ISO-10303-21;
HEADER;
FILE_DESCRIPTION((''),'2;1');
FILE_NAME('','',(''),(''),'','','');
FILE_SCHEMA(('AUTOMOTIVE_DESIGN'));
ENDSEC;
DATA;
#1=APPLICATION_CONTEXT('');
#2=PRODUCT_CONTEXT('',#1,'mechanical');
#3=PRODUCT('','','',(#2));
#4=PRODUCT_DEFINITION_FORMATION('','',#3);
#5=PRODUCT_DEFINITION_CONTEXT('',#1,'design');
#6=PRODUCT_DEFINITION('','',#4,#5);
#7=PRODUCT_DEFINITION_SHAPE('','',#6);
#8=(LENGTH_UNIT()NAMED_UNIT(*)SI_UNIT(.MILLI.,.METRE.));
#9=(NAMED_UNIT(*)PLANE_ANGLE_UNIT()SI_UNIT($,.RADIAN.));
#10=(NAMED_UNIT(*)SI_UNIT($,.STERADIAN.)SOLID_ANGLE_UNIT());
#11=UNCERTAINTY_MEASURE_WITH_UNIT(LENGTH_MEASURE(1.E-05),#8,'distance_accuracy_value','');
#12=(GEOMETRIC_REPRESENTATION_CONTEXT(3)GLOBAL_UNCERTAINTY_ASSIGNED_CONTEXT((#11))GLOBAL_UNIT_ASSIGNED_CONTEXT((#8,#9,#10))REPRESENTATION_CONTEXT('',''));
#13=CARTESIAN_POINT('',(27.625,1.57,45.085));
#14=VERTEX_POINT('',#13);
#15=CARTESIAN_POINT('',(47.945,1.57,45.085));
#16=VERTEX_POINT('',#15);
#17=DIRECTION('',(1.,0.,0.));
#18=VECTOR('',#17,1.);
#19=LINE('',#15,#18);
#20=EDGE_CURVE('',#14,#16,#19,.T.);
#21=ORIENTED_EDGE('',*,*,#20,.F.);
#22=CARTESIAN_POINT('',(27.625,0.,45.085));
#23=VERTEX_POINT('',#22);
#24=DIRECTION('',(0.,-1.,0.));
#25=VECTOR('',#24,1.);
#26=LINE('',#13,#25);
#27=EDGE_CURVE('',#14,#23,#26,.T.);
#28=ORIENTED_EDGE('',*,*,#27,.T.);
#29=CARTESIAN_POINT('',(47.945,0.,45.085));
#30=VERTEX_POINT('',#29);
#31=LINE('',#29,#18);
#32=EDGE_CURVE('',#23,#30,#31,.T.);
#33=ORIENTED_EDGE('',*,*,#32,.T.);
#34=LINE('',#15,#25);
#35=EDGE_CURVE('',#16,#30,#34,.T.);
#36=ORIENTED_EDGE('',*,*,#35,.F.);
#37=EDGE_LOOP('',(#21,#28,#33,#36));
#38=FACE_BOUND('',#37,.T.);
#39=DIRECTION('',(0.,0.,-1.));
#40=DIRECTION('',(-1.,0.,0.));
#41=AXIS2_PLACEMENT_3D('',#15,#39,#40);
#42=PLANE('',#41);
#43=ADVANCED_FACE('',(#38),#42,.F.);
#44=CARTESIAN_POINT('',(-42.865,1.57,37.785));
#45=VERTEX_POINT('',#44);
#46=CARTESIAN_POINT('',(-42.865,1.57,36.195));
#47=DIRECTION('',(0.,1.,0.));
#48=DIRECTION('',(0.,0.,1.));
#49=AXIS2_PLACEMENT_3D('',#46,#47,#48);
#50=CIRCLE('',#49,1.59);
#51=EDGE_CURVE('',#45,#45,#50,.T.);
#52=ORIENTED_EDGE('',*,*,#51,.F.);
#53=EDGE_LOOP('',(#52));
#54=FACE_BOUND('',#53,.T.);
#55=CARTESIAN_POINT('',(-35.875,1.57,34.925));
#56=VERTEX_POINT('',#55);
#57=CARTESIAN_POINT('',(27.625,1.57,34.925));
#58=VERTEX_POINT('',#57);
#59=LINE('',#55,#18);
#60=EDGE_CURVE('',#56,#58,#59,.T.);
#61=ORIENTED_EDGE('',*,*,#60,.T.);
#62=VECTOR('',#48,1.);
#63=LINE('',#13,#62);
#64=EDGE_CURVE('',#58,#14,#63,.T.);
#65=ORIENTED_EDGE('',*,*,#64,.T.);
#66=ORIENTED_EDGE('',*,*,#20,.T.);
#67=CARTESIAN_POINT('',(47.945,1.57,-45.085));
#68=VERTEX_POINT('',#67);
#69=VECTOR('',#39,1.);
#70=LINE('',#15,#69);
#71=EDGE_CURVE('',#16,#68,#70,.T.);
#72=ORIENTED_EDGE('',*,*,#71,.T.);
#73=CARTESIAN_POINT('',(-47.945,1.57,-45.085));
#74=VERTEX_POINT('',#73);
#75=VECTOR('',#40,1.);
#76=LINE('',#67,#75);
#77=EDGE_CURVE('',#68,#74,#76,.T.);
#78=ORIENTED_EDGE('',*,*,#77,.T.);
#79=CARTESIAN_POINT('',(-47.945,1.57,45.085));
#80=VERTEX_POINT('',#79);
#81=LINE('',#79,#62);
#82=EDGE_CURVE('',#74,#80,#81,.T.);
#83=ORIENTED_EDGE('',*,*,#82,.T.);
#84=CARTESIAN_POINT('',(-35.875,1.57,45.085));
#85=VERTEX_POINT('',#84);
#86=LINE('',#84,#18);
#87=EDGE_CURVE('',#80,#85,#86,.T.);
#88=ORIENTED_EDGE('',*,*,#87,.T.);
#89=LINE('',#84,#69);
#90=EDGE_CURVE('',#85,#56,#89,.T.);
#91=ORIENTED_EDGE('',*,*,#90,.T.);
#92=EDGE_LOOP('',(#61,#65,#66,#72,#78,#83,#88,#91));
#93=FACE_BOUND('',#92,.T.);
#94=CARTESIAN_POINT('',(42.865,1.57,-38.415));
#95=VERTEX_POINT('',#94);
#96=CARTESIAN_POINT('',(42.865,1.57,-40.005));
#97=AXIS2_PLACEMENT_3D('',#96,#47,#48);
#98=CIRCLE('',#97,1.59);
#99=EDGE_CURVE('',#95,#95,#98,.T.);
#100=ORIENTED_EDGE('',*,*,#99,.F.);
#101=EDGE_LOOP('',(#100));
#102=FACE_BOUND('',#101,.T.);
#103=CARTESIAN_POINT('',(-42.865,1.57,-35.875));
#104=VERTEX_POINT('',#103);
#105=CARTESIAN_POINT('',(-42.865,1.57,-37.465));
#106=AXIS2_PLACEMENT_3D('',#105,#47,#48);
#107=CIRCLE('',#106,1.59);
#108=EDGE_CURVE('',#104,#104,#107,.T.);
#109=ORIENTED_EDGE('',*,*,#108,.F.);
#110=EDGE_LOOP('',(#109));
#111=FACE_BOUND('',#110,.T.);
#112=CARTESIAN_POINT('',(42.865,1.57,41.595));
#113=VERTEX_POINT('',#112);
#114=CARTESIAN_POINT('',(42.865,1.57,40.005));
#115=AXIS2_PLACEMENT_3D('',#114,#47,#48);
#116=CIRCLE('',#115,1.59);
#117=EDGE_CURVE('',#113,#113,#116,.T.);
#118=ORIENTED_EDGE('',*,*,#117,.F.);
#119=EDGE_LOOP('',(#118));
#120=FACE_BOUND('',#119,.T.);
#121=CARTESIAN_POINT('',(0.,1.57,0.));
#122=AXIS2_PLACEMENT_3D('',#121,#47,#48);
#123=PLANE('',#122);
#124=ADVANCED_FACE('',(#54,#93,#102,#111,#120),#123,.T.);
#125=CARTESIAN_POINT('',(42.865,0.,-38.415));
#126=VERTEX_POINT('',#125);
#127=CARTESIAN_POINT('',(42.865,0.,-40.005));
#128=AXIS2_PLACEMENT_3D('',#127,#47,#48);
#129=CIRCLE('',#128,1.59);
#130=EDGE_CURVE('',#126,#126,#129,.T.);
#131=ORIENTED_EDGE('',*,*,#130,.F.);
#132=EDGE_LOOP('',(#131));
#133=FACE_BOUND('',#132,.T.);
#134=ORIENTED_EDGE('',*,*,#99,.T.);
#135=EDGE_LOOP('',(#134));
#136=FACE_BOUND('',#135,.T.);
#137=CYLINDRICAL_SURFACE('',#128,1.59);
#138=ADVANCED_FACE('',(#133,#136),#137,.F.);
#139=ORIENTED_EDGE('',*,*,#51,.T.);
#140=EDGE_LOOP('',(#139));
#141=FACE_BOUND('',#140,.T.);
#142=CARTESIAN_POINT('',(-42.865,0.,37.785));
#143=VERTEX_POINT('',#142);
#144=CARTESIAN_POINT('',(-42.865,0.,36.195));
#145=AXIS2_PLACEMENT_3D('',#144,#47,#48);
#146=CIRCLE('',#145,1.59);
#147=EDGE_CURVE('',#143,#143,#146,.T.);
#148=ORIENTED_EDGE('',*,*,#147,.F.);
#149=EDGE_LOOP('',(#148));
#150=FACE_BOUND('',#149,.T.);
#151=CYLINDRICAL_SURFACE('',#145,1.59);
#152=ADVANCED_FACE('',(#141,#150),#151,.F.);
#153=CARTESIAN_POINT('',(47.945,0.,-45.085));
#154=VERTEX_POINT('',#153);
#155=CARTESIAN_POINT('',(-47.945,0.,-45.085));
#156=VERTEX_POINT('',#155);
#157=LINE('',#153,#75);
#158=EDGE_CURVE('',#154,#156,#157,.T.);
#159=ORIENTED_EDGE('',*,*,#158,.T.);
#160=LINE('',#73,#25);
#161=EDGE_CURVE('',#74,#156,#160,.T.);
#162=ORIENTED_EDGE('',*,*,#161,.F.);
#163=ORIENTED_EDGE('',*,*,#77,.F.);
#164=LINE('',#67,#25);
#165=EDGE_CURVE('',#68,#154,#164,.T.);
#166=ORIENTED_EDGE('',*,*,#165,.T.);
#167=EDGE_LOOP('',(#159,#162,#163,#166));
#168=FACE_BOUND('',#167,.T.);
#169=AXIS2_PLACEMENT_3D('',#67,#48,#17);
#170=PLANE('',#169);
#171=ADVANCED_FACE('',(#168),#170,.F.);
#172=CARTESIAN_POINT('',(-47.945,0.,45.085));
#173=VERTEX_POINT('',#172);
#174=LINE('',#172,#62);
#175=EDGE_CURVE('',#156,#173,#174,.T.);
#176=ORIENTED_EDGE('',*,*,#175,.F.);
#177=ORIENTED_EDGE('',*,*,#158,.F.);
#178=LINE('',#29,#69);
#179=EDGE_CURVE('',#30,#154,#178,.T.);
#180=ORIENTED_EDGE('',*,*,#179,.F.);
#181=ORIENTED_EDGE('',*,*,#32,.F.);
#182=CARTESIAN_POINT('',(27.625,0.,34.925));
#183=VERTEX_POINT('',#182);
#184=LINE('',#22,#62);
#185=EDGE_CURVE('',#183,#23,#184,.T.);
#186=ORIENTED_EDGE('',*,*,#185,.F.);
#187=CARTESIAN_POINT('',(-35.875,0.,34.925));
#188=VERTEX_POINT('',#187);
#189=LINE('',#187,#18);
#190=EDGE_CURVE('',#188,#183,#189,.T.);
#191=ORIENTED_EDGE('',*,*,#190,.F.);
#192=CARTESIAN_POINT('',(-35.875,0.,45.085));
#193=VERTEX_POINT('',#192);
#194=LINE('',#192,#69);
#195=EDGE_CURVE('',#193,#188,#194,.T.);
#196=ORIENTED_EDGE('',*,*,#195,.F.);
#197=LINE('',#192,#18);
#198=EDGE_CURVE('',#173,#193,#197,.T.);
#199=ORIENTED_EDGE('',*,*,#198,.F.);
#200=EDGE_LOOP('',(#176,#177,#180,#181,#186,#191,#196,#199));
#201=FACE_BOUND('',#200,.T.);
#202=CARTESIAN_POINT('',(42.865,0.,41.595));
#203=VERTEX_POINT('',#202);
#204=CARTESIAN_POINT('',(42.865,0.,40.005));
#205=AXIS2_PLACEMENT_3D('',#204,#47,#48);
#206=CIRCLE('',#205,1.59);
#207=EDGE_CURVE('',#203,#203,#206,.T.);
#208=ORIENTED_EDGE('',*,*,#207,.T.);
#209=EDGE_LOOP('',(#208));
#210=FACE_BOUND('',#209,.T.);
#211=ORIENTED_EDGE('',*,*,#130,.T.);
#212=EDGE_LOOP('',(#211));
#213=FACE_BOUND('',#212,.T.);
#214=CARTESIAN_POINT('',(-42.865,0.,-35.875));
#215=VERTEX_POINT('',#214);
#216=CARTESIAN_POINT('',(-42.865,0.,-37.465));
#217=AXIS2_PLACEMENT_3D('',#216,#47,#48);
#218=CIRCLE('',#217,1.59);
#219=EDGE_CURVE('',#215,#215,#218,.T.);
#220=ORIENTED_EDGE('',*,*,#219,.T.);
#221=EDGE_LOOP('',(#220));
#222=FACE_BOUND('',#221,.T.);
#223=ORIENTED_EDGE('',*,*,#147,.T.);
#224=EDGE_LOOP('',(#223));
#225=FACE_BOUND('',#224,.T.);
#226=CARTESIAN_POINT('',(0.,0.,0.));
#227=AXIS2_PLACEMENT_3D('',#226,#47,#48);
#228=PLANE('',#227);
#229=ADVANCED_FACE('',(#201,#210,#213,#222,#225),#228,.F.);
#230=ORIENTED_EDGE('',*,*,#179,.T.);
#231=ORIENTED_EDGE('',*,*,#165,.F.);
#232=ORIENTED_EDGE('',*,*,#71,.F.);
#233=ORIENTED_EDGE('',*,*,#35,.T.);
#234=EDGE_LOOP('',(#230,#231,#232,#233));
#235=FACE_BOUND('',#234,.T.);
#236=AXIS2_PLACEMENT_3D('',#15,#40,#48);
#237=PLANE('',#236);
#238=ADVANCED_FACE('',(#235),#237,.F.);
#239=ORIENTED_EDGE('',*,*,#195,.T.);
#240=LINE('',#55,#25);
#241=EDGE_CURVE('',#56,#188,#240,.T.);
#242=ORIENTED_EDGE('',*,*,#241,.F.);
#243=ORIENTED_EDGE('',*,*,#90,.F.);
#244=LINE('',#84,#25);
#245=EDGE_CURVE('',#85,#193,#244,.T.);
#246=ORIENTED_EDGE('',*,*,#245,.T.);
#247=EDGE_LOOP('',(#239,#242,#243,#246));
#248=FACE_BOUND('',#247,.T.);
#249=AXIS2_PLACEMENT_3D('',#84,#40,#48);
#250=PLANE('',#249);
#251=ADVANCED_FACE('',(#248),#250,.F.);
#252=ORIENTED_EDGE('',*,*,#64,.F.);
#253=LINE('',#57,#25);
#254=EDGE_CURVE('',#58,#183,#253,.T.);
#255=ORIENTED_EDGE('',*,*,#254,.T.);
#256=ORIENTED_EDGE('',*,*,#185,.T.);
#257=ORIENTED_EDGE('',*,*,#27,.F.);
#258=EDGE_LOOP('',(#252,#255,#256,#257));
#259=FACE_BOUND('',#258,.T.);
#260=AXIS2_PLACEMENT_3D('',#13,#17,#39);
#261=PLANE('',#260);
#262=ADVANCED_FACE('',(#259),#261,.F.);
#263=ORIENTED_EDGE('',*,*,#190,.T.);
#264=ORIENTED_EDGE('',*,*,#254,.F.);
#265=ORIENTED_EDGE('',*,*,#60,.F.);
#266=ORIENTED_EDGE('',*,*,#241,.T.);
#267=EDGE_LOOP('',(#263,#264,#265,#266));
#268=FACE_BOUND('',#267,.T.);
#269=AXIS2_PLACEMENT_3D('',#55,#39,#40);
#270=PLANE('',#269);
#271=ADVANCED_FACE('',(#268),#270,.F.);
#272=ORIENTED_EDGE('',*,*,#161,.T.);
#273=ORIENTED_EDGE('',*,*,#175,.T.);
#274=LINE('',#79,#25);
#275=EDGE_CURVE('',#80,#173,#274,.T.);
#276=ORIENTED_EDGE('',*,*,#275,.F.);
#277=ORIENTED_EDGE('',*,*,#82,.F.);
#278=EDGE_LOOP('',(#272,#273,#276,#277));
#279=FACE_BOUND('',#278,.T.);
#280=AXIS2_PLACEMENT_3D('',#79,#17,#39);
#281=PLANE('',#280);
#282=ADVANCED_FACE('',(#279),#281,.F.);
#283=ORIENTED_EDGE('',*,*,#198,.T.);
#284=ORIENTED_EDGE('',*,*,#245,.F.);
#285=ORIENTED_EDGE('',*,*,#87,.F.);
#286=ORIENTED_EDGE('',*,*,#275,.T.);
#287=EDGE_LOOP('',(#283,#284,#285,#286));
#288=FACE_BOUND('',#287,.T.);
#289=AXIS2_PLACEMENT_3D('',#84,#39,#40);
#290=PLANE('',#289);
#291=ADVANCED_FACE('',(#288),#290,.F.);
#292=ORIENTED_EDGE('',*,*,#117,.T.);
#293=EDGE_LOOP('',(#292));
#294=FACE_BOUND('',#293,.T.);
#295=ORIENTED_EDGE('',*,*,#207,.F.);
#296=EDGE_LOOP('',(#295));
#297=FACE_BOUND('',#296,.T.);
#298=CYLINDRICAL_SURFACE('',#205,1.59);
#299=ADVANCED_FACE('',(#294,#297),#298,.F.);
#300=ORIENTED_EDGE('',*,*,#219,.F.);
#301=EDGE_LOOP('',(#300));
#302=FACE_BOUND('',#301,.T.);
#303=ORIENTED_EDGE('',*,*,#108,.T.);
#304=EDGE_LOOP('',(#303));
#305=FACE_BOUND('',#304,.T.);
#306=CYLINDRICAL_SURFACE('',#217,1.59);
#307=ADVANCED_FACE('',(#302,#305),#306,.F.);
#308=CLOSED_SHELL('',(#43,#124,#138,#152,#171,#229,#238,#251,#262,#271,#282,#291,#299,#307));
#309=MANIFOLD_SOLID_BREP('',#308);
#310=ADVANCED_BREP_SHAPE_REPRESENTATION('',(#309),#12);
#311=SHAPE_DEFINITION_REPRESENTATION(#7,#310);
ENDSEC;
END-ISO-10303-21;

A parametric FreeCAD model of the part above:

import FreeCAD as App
import Part
import Sketcher
from FreeCAD import Vector
Q = App.Units.Quantity

doc = App.newDocument("Part")
body = doc.addObject("PartDesign::Body", "Body")

# Sketch on XZ plane
sketch1 = body.newObject("Sketcher::SketchObject", "Sketch")
sketch1.AttachmentSupport = (doc.getObject("XZ_Plane"), [""])
sketch1.MapMode = "FlatFace"
sketch1.addGeometry([
    Part.LineSegment(Vector(-47.945, 45.085, 0), Vector(-35.875, 45.085, 0)),  # 0
    Part.LineSegment(Vector(-35.875, 45.085, 0), Vector(-35.875, 34.925, 0)),  # 1
    Part.LineSegment(Vector(-35.875, 34.925, 0), Vector(27.625, 34.925, 0)),  # 2
    Part.LineSegment(Vector(27.625, 34.925, 0), Vector(27.625, 45.085, 0)),  # 3
    Part.LineSegment(Vector(27.625, 45.085, 0), Vector(47.945, 45.085, 0)),  # 4
    Part.LineSegment(Vector(47.945, 45.085, 0), Vector(47.945, -45.085, 0)),  # 5
    Part.LineSegment(Vector(47.945, -45.085, 0), Vector(-47.945, -45.085, 0)),  # 6
    Part.LineSegment(Vector(-47.945, -45.085, 0), Vector(-47.945, 45.085, 0)),  # 7
], False)
sketch1.addConstraint([
    Sketcher.Constraint("Coincident", 0, 2, 1, 1),
    Sketcher.Constraint("Coincident", 1, 2, 2, 1),
    Sketcher.Constraint("Coincident", 2, 2, 3, 1),
    Sketcher.Constraint("Coincident", 3, 2, 4, 1),
    Sketcher.Constraint("Coincident", 4, 2, 5, 1),
    Sketcher.Constraint("Coincident", 5, 2, 6, 1),
    Sketcher.Constraint("Coincident", 6, 2, 7, 1),
    Sketcher.Constraint("Coincident", 7, 2, 0, 1),
    Sketcher.Constraint("Horizontal", 0),
    Sketcher.Constraint("Vertical", 1),
    Sketcher.Constraint("Horizontal", 2),
    Sketcher.Constraint("Vertical", 3),
    Sketcher.Constraint("Horizontal", 4),
    Sketcher.Constraint("Vertical", 5),
    Sketcher.Constraint("Horizontal", 6),
    Sketcher.Constraint("Vertical", 7),
    Sketcher.Constraint("Symmetric", 4, 2, 6, 2, -1, 1),
    Sketcher.Constraint("Horizontal", 0, 2, 3, 2),
    Sketcher.Constraint("DistanceX", 2, 1, 2, 2, Q("2.5 in")),
    Sketcher.Constraint("DistanceX", 4, 1, 4, 2, Q("0.8 in")),
    Sketcher.Constraint("DistanceY", 1, 2, 1, 1, Q("0.4 in")),
    Sketcher.Constraint("DistanceY", 5, 2, 5, 1, Q("3.55 in")),
    Sketcher.Constraint("DistanceX", 0, 1, 0, 2, Q("12.07 mm")),
])
pad1 = body.newObject("PartDesign::Pad", "Pad")
pad1.Profile = sketch1
pad1.Length = 1.57
pad1.Reversed = True

# Sketch on XZ plane
sketch2 = body.newObject("Sketcher::SketchObject", "Sketch001")
sketch2.AttachmentSupport = (doc.getObject("XZ_Plane"), [""])
sketch2.MapMode = "FlatFace"
sketch2.AttachmentOffset = App.Placement(Vector(0, 0, -1.57), App.Rotation())
sketch2.addGeometry([
    Part.Circle(Vector(42.865, 40.005, 0), Vector(0, 0, 1), 1.59),
    Part.Circle(Vector(-42.865, 36.195, 0), Vector(0, 0, 1), 1.59),
    Part.Circle(Vector(-42.865, -37.465, 0), Vector(0, 0, 1), 1.59),
    Part.Circle(Vector(42.865, -40.005, 0), Vector(0, 0, 1), 1.59),
], False)
sketch2.addConstraint([
    Sketcher.Constraint("Equal", 0, 1),
    Sketcher.Constraint("Equal", 1, 2),
    Sketcher.Constraint("Equal", 2, 3),
    Sketcher.Constraint("Symmetric", 0, 3, 3, 3, -1),
    Sketcher.Constraint("Vertical", 1, 3, 2, 3),
    Sketcher.Constraint("DistanceY", 3, 3, 1, 3, Q("3 in")),
    Sketcher.Constraint("DistanceY", 2, 3, 1, 3, Q("2.9 in")),
    Sketcher.Constraint("Diameter", 0, Q("3.18 mm")),
    Sketcher.Constraint("DistanceY", 1, 3, 0, 3, Q("0.15 in")),
    Sketcher.Constraint("DistanceX", -1, 1, 0, 3, Q("42.865 mm")),
    Sketcher.Constraint("DistanceX", 1, 3, -1, 1, Q("42.865 mm")),
])
pocket1 = body.newObject("PartDesign::Pocket", "Pocket")
pocket1.Profile = sketch2
pocket1.Type = "ThroughAll"
pocket1.Reversed = True

doc.recompute()
